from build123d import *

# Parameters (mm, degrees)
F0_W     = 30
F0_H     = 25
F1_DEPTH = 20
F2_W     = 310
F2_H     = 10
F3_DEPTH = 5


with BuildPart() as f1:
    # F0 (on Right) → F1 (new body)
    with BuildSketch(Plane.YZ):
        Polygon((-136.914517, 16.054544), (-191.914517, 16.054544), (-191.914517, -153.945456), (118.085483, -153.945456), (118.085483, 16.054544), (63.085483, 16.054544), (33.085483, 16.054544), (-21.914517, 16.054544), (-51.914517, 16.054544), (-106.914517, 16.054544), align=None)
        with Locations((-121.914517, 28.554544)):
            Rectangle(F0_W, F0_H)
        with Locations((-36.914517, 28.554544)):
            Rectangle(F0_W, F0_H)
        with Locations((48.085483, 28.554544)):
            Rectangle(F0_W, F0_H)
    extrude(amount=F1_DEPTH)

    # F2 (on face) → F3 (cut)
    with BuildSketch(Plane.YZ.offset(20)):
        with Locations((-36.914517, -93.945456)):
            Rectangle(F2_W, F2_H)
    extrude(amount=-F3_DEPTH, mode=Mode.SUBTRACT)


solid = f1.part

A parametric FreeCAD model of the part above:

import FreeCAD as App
import Part
import Sketcher

V = App.Vector
Q = App.Units.Quantity

doc = App.newDocument("Part")
params = doc.addObject("Spreadsheet::Sheet", "Params")
for row, (alias, value) in enumerate([
    ("sketch1_width", "310 mm"),
    ("sketch1_width2", "55 mm"),
    ("sketch1_height", "170 mm"),
    ("sketch1_height2", "25 mm"),
    ("pad1_length", "20 mm"),
    ("sketch2_width", "310 mm"),
    ("sketch2_height", "10 mm"),
    ("pocket1_length", "5 mm"),
], start=1):
    params.set(f"A{row}", alias)
    params.set(f"B{row}", "=" + value)
    params.setAlias(f"B{row}", alias)

body = doc.addObject("PartDesign::Body", "Body")

sketch1 = body.newObject("Sketcher::SketchObject", "Sketch")
sketch1.AttachmentSupport = (doc.getObject("YZ_Plane"), [""])
sketch1.MapMode = "FlatFace"
sketch1.addGeometry(Part.LineSegment(V(-192, 16, 0), V(-192, -154, 0)), False)
sketch1.addGeometry(Part.LineSegment(V(-192, -154, 0), V(118, -154, 0)), False)
sketch1.addGeometry(Part.LineSegment(V(118, -154, 0), V(118, 16, 0)), False)
sketch1.addGeometry(Part.LineSegment(V(118, 16, 0), V(63, 16, 0)), False)
sketch1.addGeometry(Part.LineSegment(V(63, 16, 0), V(63, 41, 0)), False)
sketch1.addGeometry(Part.LineSegment(V(63, 41, 0), V(33, 41, 0)), False)
sketch1.addGeometry(Part.LineSegment(V(33, 41, 0), V(33, 16, 0)), False)
sketch1.addGeometry(Part.LineSegment(V(33, 16, 0), V(-22, 16, 0)), False)
sketch1.addGeometry(Part.LineSegment(V(-22, 16, 0), V(-22, 41, 0)), False)
sketch1.addGeometry(Part.LineSegment(V(-22, 41, 0), V(-52, 41, 0)), False)
sketch1.addGeometry(Part.LineSegment(V(-52, 41, 0), V(-52, 16, 0)), False)
sketch1.addGeometry(Part.LineSegment(V(-52, 16, 0), V(-107, 16, 0)), False)
sketch1.addGeometry(Part.LineSegment(V(-107, 16, 0), V(-107, 41, 0)), False)
sketch1.addGeometry(Part.LineSegment(V(-107, 41, 0), V(-137, 41, 0)), False)
sketch1.addGeometry(Part.LineSegment(V(-137, 41, 0), V(-137, 16, 0)), False)
sketch1.addGeometry(Part.LineSegment(V(-137, 16, 0), V(-192, 16, 0)), False)
sketch1.addConstraint(Sketcher.Constraint("Coincident", 0, 2, 1, 1))
sketch1.addConstraint(Sketcher.Constraint("Coincident", 1, 2, 2, 1))
sketch1.addConstraint(Sketcher.Constraint("Coincident", 2, 2, 3, 1))
sketch1.addConstraint(Sketcher.Constraint("Coincident", 3, 2, 4, 1))
sketch1.addConstraint(Sketcher.Constraint("Coincident", 4, 2, 5, 1))
sketch1.addConstraint(Sketcher.Constraint("Coincident", 5, 2, 6, 1))
sketch1.addConstraint(Sketcher.Constraint("Coincident", 6, 2, 7, 1))
sketch1.addConstraint(Sketcher.Constraint("Coincident", 7, 2, 8, 1))
sketch1.addConstraint(Sketcher.Constraint("Coincident", 8, 2, 9, 1))
sketch1.addConstraint(Sketcher.Constraint("Coincident", 9, 2, 10, 1))
sketch1.addConstraint(Sketcher.Constraint("Coincident", 10, 2, 11, 1))
sketch1.addConstraint(Sketcher.Constraint("Coincident", 11, 2, 12, 1))
sketch1.addConstraint(Sketcher.Constraint("Coincident", 12, 2, 13, 1))
sketch1.addConstraint(Sketcher.Constraint("Coincident", 13, 2, 14, 1))
sketch1.addConstraint(Sketcher.Constraint("Coincident", 14, 2, 15, 1))
sketch1.addConstraint(Sketcher.Constraint("Coincident", 15, 2, 0, 1))
sketch1.addConstraint(Sketcher.Constraint("Vertical", 0))
sketch1.addConstraint(Sketcher.Constraint("Horizontal", 1))
sketch1.addConstraint(Sketcher.Constraint("Vertical", 2))
sketch1.addConstraint(Sketcher.Constraint("Horizontal", 3))
sketch1.addConstraint(Sketcher.Constraint("Vertical", 4))
sketch1.addConstraint(Sketcher.Constraint("Horizontal", 5))
sketch1.addConstraint(Sketcher.Constraint("Vertical", 6))
sketch1.addConstraint(Sketcher.Constraint("Horizontal", 7))
sketch1.addConstraint(Sketcher.Constraint("Vertical", 8))
sketch1.addConstraint(Sketcher.Constraint("Horizontal", 9))
sketch1.addConstraint(Sketcher.Constraint("Vertical", 10))
sketch1.addConstraint(Sketcher.Constraint("Horizontal", 11))
sketch1.addConstraint(Sketcher.Constraint("Vertical", 12))
sketch1.addConstraint(Sketcher.Constraint("Horizontal", 13))
sketch1.addConstraint(Sketcher.Constraint("Vertical", 14))
sketch1.addConstraint(Sketcher.Constraint("Horizontal", 15))
sketch1.addConstraint(Sketcher.Constraint("Horizontal", 3, 2, 6, 2))
sketch1.addConstraint(Sketcher.Constraint("Horizontal", 5, 2, 8, 2))
sketch1.addConstraint(Sketcher.Constraint("Horizontal", 7, 2, 10, 2))
sketch1.addConstraint(Sketcher.Constraint("Horizontal", 9, 2, 12, 2))
sketch1.addConstraint(Sketcher.Constraint("Horizontal", 11, 2, 14, 2))
sketch1.addConstraint(Sketcher.Constraint("Equal", 3, 7))
sketch1.addConstraint(Sketcher.Constraint("Equal", 5, 9))
sketch1.addConstraint(Sketcher.Constraint("Equal", 7, 11))
sketch1.addConstraint(Sketcher.Constraint("Equal", 9, 13))
sketch1.addConstraint(Sketcher.Constraint("Equal", 11, 15))
sketch1.addConstraint(Sketcher.Constraint("DistanceX", 1, 1, 1, 2, Q("310 mm")))
sketch1.addConstraint(Sketcher.Constraint("DistanceX", 3, 2, 3, 1, Q("55 mm")))
sketch1.addConstraint(Sketcher.Constraint("DistanceY", 0, 2, 0, 1, Q("170 mm")))
sketch1.addConstraint(Sketcher.Constraint("DistanceY", 4, 1, 4, 2, Q("25 mm")))
sketch1.addConstraint(Sketcher.Constraint("DistanceX", 0, 2, -1, 1, Q("191.914517 mm")))
sketch1.addConstraint(Sketcher.Constraint("DistanceY", 0, 2, -1, 1, Q("153.945456 mm")))
sketch1.setExpression("Constraints[42]", "Params.sketch1_width")
sketch1.setExpression("Constraints[43]", "Params.sketch1_width2")
sketch1.setExpression("Constraints[44]", "Params.sketch1_height")
sketch1.setExpression("Constraints[45]", "Params.sketch1_height2")
pad1 = body.newObject("PartDesign::Pad", "Pad")
pad1.Profile = sketch1
pad1.setExpression("Length", "Params.pad1_length")

sketch2 = body.newObject("Sketcher::SketchObject", "Sketch001")
sketch2.AttachmentSupport = (doc.getObject("YZ_Plane"), [""])
sketch2.MapMode = "FlatFace"
sketch2.AttachmentOffset = App.Placement(V(0, 0, 20), App.Rotation())
sketch2.addGeometry(Part.LineSegment(V(-192, -89, 0), V(-192, -99, 0)), False)
sketch2.addGeometry(Part.LineSegment(V(-192, -99, 0), V(118, -99, 0)), False)
sketch2.addGeometry(Part.LineSegment(V(118, -99, 0), V(118, -89, 0)), False)
sketch2.addGeometry(Part.LineSegment(V(118, -89, 0), V(-192, -89, 0)), False)
sketch2.addConstraint(Sketcher.Constraint("Coincident", 0, 2, 1, 1))
sketch2.addConstraint(Sketcher.Constraint("Coincident", 1, 2, 2, 1))
sketch2.addConstraint(Sketcher.Constraint("Coincident", 2, 2, 3, 1))
sketch2.addConstraint(Sketcher.Constraint("Coincident", 3, 2, 0, 1))
sketch2.addConstraint(Sketcher.Constraint("Vertical", 0))
sketch2.addConstraint(Sketcher.Constraint("Horizontal", 1))
sketch2.addConstraint(Sketcher.Constraint("Vertical", 2))
sketch2.addConstraint(Sketcher.Constraint("Horizontal", 3))
sketch2.addConstraint(Sketcher.Constraint("DistanceX", 1, 1, 1, 2, Q("310 mm")))
sketch2.addConstraint(Sketcher.Constraint("DistanceY", 0, 2, 0, 1, Q("10 mm")))
sketch2.addConstraint(Sketcher.Constraint("DistanceX", 0, 2, -1, 1, Q("191.914517 mm")))
sketch2.addConstraint(Sketcher.Constraint("DistanceY", 0, 2, -1, 1, Q("98.945456 mm")))
sketch2.setExpression("Constraints[8]", "Params.sketch2_width")
sketch2.setExpression("Constraints[9]", "Params.sketch2_height")
pocket1 = body.newObject("PartDesign::Pocket", "Pocket")
pocket1.Profile = sketch2
pocket1.setExpression("Length", "Params.pocket1_length")

doc.recompute()
